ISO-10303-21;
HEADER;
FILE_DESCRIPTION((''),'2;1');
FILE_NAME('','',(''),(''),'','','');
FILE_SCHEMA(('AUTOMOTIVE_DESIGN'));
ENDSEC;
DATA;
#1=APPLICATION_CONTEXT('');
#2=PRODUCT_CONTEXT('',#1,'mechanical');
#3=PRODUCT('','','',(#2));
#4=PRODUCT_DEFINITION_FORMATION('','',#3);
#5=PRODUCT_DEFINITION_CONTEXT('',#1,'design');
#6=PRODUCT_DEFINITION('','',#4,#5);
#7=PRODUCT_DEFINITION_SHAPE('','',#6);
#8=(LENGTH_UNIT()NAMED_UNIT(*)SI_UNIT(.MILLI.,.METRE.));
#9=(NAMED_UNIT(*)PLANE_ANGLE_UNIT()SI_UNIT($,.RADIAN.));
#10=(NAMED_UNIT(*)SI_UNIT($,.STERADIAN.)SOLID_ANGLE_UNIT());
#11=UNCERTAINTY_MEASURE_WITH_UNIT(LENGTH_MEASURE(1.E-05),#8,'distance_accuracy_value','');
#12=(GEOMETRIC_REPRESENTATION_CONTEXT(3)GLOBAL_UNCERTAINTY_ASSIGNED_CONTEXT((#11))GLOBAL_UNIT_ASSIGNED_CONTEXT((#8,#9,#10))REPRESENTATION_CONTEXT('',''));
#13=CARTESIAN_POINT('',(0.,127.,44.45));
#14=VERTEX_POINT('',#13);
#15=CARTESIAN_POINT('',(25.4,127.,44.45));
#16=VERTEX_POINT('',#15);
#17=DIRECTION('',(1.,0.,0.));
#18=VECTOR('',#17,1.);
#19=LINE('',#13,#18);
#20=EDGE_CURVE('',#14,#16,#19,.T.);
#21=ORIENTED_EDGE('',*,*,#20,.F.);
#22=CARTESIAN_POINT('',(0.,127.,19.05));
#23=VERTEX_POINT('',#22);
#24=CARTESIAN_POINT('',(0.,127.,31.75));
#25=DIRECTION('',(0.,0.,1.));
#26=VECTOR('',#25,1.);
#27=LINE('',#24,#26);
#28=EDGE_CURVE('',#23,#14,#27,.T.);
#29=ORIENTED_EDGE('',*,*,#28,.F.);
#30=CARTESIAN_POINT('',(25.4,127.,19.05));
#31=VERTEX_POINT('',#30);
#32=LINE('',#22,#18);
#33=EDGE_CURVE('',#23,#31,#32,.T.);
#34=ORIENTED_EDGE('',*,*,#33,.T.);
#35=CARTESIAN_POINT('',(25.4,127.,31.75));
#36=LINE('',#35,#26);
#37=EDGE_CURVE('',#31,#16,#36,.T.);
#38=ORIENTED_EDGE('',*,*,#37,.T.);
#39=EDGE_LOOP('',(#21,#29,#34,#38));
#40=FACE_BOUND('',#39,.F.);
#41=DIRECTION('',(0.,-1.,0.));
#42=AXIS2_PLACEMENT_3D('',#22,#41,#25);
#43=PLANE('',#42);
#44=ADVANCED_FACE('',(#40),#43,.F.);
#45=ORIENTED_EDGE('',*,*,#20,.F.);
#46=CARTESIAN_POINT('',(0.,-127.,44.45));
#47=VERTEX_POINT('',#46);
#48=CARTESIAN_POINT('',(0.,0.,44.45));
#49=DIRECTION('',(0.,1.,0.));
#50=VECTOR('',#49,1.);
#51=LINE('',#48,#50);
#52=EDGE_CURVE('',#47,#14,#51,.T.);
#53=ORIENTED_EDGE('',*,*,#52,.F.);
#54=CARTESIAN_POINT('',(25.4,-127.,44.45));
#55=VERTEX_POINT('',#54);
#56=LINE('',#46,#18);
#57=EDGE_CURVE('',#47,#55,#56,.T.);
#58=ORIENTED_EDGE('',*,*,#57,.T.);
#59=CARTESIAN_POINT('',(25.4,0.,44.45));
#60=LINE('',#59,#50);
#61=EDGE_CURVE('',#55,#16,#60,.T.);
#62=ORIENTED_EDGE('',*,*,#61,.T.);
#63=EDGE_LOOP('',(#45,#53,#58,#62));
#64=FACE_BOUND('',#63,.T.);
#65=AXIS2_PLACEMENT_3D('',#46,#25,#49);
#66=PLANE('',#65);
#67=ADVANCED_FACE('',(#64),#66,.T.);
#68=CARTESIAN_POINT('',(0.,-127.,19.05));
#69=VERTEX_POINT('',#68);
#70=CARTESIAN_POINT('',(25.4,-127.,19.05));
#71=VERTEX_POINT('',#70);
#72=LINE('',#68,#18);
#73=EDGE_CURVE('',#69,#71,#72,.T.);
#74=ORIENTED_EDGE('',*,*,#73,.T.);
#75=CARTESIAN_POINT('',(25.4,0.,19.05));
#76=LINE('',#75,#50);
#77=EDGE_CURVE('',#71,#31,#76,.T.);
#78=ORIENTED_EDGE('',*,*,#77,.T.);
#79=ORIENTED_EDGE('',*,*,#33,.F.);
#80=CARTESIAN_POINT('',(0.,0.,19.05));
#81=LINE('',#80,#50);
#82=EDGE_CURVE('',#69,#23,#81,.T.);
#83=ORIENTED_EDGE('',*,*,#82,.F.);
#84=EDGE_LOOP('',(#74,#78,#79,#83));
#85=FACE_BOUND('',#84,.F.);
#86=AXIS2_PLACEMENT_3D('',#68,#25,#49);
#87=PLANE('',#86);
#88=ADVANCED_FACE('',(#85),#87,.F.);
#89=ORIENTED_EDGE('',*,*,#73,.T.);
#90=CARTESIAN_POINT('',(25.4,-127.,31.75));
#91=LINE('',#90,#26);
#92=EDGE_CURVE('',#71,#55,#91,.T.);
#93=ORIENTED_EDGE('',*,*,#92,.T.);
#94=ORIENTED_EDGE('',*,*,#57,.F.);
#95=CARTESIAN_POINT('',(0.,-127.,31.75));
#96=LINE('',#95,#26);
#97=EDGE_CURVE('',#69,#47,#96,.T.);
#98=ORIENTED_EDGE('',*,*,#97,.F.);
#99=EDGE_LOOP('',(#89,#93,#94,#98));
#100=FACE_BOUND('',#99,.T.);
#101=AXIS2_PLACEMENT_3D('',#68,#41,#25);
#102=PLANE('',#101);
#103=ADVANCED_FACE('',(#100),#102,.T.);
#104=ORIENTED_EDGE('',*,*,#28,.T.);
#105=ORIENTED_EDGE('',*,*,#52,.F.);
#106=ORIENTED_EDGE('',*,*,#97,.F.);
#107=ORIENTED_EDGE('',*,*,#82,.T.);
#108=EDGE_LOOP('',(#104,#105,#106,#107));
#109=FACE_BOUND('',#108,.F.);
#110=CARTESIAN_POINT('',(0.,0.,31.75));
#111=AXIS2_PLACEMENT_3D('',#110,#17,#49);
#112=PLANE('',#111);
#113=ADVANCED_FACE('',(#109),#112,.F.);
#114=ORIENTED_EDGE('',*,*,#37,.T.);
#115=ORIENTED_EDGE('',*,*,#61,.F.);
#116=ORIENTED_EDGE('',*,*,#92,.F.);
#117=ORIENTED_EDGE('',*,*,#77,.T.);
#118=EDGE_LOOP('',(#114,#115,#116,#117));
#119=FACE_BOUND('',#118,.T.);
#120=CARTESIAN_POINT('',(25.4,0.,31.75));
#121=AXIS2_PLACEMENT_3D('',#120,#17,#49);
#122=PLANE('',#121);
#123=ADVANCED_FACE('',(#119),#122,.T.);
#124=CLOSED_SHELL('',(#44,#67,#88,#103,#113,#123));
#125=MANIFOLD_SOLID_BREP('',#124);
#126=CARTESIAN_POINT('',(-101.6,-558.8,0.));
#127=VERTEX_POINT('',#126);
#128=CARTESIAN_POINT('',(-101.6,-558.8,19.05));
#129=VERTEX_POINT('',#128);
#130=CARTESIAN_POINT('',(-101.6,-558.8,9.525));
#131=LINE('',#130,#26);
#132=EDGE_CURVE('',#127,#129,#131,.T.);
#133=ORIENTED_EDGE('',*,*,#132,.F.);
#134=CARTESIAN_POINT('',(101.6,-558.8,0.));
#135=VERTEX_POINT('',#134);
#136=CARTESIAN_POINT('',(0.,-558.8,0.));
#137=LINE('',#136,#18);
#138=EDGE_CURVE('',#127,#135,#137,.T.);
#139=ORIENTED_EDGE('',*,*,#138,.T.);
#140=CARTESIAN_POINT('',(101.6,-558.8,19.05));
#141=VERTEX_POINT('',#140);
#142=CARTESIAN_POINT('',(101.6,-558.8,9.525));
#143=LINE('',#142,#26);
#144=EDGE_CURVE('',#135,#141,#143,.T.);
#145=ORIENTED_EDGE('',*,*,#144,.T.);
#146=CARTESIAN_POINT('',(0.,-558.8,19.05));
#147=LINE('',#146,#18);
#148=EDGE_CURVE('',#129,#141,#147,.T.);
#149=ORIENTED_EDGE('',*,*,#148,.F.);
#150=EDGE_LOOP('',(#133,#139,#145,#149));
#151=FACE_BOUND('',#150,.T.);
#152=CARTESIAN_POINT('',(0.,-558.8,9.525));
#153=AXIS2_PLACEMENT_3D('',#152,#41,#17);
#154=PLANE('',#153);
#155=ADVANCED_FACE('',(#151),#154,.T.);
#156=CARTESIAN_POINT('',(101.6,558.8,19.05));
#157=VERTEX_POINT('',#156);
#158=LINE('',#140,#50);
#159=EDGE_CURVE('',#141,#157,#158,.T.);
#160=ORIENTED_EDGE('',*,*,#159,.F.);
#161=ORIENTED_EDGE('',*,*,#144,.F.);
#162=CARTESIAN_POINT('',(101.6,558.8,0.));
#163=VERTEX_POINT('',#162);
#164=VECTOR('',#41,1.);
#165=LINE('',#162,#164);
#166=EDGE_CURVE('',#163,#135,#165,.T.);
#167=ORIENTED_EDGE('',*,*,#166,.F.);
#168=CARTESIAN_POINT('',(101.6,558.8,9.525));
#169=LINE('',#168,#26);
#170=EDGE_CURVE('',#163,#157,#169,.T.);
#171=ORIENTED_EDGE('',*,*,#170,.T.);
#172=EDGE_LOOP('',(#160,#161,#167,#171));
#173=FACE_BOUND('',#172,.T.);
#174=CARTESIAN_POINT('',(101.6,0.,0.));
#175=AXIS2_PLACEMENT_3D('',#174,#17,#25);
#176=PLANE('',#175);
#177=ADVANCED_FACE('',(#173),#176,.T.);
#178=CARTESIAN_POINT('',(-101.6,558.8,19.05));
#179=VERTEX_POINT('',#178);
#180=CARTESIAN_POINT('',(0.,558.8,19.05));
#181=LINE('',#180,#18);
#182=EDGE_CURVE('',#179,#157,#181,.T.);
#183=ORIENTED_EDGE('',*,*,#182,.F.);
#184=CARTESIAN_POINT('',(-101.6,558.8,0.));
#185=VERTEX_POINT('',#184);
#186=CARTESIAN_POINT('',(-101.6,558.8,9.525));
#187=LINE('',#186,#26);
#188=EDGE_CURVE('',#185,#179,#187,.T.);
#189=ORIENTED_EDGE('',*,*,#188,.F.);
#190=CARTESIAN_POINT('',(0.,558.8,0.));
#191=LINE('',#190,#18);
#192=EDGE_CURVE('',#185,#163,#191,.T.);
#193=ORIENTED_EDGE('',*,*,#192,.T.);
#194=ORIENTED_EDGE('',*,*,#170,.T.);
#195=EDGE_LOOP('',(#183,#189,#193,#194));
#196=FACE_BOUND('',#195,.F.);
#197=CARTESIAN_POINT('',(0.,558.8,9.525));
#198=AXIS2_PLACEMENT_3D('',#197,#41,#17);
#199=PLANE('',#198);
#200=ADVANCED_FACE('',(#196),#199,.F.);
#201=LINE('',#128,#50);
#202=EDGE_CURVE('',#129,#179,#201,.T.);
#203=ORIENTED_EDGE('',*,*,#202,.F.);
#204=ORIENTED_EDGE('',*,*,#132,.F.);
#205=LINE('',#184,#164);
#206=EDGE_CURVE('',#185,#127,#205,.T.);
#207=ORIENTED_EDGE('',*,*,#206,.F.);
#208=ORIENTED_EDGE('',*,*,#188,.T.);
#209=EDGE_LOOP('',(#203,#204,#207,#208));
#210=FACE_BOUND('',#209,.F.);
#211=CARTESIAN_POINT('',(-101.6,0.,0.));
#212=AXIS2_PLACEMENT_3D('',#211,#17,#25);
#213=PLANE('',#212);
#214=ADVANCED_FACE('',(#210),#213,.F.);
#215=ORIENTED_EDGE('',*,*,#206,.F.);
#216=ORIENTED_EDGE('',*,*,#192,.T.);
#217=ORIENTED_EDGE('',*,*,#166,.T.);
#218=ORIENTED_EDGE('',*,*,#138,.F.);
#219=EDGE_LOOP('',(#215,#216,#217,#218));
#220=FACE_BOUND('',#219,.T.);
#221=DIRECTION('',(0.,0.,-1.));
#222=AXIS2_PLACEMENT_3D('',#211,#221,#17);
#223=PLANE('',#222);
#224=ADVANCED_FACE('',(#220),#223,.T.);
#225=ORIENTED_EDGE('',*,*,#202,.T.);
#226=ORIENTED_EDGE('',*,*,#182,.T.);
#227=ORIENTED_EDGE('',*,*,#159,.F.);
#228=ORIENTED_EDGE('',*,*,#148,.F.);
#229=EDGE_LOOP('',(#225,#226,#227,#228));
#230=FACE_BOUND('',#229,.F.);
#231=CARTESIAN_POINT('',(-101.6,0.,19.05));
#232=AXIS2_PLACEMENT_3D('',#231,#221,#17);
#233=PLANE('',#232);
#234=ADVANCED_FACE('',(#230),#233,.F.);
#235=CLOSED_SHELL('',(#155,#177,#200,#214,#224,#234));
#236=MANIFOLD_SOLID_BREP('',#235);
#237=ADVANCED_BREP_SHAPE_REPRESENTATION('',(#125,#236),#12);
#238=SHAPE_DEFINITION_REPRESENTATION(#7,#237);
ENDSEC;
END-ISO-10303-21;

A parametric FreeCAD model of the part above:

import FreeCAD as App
import Part
import Sketcher
from FreeCAD import Vector
Q = App.Units.Quantity


def add_polygon(sketch, points):
    """Adds a closed chain of lines whose ends are joined by coincident constraints."""
    first, n = sketch.GeometryCount, len(points)
    for a, b in zip(points, points[1:] + points[:1]):
        sketch.addGeometry(Part.LineSegment(App.Vector(*a, 0), App.Vector(*b, 0)), False)
    for i in range(n):
        sketch.addConstraint(Sketcher.Constraint("Coincident", first + i, 2, first + (i + 1) % n, 1))

doc = App.newDocument("Part")
params = doc.addObject("Spreadsheet::Sheet", "Params")
for row, (alias, value) in enumerate([
    ("sketch1_width", "8 in"),
    ("sketch1_height", "0.75 in"),
    ("pad1_length", "44 in"),
    ("sketch2_width", "10 in"),
    ("sketch2_height", "1 in"),
    ("pad2_length", "1 in"),
], start=1):
    params.set(f"A{row}", alias)
    params.set(f"B{row}", "=" + value)
    params.setAlias(f"B{row}", alias)

body = doc.addObject("PartDesign::Body", "Body")

# Sketch on XZ plane
sketch1 = body.newObject("Sketcher::SketchObject", "Sketch")
sketch1.AttachmentSupport = (doc.getObject("XZ_Plane"), [""])
sketch1.MapMode = "FlatFace"
add_polygon(sketch1, [(-102, 19), (-102, 0), (102, 0), (102, 19)])  # lines 0-3
sketch1.addConstraint([
    Sketcher.Constraint("Vertical", 0),
    Sketcher.Constraint("Horizontal", 1),
    Sketcher.Constraint("Vertical", 2),
    Sketcher.Constraint("Horizontal", 3),
    Sketcher.Constraint("Symmetric", 0, 2, 1, 2, -1, 1),
    Sketcher.Constraint("DistanceX", 1, 1, 1, 2, Q("8 in")),
    Sketcher.Constraint("DistanceY", 0, 2, 0, 1, Q("0.75 in")),
])
sketch1.setExpression("Constraints[9]", "Params.sketch1_width")
sketch1.setExpression("Constraints[10]", "Params.sketch1_height")
pad1 = body.newObject("PartDesign::Pad", "Pad")
pad1.Profile = sketch1
pad1.setExpression("Length", "Params.pad1_length")
pad1.Midplane = True
body2 = doc.addObject("PartDesign::Body", "Body001")

# Sketch on YZ plane
sketch2 = body2.newObject("Sketcher::SketchObject", "Sketch001")
sketch2.AttachmentSupport = (doc.getObject("YZ_Plane001"), [""])
sketch2.MapMode = "FlatFace"
add_polygon(sketch2, [(-127, 44), (-127, 19), (127, 19), (127, 44)])  # lines 0-3
sketch2.addConstraint([
    Sketcher.Constraint("Vertical", 0),
    Sketcher.Constraint("Horizontal", 1),
    Sketcher.Constraint("Vertical", 2),
    Sketcher.Constraint("Horizontal", 3),
    Sketcher.Constraint("DistanceX", 1, 1, 1, 2, Q("10 in")),
    Sketcher.Constraint("DistanceY", 0, 2, 0, 1, Q("1 in")),
    Sketcher.Constraint("DistanceX", 0, 2, -1, 1, Q("5 in")),
    Sketcher.Constraint("DistanceY", -1, 1, 0, 2, Q("0.75 in")),
])
sketch2.setExpression("Constraints[8]", "Params.sketch2_width")
sketch2.setExpression("Constraints[9]", "Params.sketch2_height")
pad2 = body2.newObject("PartDesign::Pad", "Pad001")
pad2.Profile = sketch2
pad2.setExpression("Length", "Params.pad2_length")

doc.recompute()
